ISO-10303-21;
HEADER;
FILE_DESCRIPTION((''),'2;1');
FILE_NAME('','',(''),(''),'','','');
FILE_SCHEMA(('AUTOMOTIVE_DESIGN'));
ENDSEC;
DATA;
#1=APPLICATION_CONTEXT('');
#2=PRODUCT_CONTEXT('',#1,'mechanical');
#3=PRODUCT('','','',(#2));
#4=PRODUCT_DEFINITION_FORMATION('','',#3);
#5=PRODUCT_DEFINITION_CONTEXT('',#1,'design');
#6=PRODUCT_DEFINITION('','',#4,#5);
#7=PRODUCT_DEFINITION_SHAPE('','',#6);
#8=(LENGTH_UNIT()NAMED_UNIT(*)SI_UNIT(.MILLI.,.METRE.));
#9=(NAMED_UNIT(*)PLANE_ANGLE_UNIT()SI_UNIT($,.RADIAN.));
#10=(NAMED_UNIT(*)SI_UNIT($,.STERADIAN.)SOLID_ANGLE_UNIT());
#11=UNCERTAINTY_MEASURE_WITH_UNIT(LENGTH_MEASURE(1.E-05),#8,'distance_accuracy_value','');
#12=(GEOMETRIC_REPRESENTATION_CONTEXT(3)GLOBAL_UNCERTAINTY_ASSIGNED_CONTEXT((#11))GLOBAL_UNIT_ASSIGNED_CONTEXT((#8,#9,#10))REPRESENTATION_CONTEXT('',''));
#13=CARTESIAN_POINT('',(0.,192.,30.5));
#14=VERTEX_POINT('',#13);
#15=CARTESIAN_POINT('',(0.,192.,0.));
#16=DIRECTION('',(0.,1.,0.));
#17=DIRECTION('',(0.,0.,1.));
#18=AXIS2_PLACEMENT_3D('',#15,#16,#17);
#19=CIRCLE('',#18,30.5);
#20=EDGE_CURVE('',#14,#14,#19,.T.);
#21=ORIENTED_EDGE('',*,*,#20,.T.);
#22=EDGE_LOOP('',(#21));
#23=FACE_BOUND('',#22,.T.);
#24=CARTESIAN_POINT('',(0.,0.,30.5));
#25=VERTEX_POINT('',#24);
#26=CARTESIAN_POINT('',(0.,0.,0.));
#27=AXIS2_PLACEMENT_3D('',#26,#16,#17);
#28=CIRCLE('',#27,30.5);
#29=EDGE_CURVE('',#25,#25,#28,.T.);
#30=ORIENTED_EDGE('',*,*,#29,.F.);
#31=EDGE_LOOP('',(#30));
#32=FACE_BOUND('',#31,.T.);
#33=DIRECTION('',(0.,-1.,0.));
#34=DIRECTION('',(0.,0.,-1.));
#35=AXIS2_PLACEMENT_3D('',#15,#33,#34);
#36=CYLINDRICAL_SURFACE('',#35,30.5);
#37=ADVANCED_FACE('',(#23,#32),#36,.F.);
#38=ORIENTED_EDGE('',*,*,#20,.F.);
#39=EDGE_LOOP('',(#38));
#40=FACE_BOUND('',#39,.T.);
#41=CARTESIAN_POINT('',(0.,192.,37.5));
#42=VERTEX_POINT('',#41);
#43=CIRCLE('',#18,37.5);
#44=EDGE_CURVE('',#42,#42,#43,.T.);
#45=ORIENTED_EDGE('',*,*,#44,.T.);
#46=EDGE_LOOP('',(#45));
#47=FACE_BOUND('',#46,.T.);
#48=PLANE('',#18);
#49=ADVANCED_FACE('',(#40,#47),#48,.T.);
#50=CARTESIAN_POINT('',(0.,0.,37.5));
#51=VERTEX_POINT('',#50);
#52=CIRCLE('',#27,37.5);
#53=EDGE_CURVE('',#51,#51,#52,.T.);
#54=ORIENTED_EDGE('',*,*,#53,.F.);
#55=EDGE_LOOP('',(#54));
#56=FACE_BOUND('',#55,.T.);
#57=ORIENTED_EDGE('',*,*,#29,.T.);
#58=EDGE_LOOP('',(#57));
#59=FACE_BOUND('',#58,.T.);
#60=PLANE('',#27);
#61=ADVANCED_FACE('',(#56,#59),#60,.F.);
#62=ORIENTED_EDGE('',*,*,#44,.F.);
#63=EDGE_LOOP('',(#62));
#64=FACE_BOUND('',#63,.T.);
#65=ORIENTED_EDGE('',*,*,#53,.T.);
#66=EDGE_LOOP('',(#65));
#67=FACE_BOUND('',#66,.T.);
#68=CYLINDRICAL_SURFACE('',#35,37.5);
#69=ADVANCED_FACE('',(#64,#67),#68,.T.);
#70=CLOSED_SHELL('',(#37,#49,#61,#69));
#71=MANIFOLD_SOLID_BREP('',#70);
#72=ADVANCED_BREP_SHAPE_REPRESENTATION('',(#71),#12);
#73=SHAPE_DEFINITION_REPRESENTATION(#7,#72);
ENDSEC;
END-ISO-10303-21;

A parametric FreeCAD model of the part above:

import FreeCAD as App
import Part
import Sketcher

V = App.Vector

doc = App.newDocument("Part")
params = doc.addObject("Spreadsheet::Sheet", "Params")
for row, (alias, value) in enumerate([
    ("sketch1_diameter", "75 mm"),
    ("sketch1_diameter2", "61 mm"),
    ("pad1_length", "192 mm"),
], start=1):
    params.set(f"A{row}", alias)
    params.set(f"B{row}", "=" + value)
    params.setAlias(f"B{row}", alias)

body = doc.addObject("PartDesign::Body", "Body")

# Sketch on XZ plane
sketch1 = body.newObject("Sketcher::SketchObject", "Sketch")
sketch1.AttachmentSupport = (doc.getObject("XZ_Plane"), [""])
sketch1.MapMode = "FlatFace"
sketch1.addGeometry([
    Part.Circle(V(0, 0, 0), V(0, 0, 1), 38),
    Part.Circle(V(0, 0, 0), V(0, 0, 1), 30),
], False)
sketch1.addConstraint([
    Sketcher.Constraint("Coincident", 0, 3, -1, 1),
    Sketcher.Constraint("Coincident", 1, 3, -1, 1),
    Sketcher.Constraint("Diameter", 0, 75.0),
    Sketcher.Constraint("Diameter", 1, 61.0),
])
sketch1.setExpression("Constraints[2]", "Params.sketch1_diameter")
sketch1.setExpression("Constraints[3]", "Params.sketch1_diameter2")
pad1 = body.newObject("PartDesign::Pad", "Pad")
pad1.Profile = sketch1
pad1.setExpression("Length", "Params.pad1_length")
pad1.Reversed = True

doc.recompute()
